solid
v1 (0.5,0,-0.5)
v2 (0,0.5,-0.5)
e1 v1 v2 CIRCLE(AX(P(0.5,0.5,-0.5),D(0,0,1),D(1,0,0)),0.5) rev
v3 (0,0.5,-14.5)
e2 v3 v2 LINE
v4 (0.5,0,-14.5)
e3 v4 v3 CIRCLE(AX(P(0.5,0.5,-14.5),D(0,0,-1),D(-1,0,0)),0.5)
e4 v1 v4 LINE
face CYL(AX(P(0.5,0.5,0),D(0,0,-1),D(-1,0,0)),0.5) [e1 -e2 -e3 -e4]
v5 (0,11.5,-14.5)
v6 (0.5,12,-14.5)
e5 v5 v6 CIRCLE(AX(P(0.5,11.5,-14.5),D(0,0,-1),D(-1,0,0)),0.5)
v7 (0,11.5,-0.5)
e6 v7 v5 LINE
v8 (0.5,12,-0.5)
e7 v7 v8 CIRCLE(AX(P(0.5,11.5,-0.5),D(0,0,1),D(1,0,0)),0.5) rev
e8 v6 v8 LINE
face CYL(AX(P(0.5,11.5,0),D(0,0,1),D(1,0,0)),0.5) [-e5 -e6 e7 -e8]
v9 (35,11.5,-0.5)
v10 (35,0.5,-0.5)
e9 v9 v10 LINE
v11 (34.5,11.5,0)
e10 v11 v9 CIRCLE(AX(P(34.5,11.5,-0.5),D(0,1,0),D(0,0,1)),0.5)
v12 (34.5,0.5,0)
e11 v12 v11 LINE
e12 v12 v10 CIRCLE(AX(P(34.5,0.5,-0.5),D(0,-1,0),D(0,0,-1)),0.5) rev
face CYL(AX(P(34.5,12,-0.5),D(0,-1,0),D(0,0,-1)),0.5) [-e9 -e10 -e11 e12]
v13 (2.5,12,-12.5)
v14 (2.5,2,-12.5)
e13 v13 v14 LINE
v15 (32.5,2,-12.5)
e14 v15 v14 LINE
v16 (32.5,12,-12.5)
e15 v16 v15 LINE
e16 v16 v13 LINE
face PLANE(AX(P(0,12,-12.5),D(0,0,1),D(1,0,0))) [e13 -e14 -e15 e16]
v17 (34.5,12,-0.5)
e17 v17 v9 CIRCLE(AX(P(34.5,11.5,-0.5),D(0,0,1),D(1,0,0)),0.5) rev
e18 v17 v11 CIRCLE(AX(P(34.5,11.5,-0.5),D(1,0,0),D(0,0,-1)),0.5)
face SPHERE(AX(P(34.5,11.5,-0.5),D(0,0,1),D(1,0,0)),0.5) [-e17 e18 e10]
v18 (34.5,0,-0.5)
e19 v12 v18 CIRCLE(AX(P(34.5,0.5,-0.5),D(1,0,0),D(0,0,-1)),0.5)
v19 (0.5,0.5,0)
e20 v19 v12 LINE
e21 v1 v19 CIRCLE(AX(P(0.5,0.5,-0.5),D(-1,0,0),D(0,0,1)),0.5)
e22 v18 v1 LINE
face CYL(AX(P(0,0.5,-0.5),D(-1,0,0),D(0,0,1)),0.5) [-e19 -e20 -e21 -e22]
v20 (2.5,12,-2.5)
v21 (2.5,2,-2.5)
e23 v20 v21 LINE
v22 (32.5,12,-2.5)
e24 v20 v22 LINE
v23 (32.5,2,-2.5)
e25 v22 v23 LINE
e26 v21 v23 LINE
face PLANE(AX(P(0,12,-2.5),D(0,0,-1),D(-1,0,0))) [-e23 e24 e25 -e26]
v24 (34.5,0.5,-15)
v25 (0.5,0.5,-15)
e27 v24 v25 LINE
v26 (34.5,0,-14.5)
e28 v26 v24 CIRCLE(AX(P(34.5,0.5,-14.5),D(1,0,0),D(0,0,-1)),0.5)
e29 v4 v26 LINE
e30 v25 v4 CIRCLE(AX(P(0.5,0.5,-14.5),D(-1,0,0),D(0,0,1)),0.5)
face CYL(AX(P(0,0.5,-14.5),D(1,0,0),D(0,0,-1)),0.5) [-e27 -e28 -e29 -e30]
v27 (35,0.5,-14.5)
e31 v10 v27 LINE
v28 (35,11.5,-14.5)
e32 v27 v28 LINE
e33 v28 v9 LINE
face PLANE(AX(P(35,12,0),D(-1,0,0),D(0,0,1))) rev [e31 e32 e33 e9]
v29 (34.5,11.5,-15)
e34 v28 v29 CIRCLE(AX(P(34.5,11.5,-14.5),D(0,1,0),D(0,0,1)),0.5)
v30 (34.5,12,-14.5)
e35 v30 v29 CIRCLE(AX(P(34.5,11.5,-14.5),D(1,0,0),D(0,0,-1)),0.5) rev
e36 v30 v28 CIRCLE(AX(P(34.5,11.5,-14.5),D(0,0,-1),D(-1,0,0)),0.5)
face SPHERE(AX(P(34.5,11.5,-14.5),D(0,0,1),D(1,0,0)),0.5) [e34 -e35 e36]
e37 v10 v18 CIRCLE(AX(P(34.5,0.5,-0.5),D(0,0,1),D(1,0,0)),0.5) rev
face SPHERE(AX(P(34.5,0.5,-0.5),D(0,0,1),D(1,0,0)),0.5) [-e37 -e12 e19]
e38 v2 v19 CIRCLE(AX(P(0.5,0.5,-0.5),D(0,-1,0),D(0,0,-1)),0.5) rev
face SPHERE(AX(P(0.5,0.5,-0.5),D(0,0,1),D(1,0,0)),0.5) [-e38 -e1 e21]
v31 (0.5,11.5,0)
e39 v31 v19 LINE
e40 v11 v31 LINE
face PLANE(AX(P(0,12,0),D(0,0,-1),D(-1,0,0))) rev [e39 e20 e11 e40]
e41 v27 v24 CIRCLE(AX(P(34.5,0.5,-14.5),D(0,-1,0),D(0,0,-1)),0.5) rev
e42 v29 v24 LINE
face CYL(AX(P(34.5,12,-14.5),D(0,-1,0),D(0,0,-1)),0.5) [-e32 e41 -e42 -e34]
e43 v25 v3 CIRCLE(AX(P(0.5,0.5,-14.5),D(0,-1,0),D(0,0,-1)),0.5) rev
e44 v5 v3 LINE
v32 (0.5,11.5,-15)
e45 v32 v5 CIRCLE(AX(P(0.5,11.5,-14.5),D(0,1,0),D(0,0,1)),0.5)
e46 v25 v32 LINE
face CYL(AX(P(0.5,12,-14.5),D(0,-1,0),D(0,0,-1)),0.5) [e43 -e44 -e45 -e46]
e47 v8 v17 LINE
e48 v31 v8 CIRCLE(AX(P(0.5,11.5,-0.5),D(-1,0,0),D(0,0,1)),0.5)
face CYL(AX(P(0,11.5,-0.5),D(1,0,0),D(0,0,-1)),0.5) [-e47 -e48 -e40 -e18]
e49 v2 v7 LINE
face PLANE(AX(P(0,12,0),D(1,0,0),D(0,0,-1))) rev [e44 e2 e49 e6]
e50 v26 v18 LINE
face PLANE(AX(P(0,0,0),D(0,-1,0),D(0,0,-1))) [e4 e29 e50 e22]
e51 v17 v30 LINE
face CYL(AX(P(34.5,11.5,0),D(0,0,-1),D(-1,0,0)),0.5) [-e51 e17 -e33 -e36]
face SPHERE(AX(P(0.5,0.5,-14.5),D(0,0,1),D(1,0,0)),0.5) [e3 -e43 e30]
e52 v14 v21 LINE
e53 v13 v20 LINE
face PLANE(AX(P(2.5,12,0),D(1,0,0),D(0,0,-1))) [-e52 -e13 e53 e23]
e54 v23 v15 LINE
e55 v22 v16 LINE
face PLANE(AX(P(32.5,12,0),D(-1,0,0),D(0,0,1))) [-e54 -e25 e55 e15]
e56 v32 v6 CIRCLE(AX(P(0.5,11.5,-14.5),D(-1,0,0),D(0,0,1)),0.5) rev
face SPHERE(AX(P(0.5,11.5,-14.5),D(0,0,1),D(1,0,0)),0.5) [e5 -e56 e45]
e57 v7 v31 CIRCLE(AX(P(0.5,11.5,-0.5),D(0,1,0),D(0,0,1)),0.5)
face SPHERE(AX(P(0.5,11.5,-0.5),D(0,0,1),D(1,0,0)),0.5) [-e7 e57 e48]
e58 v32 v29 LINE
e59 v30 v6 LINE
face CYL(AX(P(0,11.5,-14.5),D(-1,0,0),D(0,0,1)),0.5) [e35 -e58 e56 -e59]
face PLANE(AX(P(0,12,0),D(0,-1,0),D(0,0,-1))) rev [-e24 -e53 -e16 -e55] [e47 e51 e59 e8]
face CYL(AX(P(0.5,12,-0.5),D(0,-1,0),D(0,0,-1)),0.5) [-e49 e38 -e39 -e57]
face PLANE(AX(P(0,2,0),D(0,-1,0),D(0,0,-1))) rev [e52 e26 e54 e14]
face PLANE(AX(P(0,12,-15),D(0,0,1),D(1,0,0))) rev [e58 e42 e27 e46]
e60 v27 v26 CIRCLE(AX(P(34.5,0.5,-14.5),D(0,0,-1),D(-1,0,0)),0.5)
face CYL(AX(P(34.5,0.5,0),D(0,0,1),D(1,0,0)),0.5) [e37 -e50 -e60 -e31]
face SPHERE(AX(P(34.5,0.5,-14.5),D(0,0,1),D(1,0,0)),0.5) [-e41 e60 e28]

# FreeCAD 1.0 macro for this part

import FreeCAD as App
import Part
import Sketcher
from FreeCAD import Vector


def edges_at(feature, points):
    """Names of the edges that pass closest to the given points."""
    edges = feature.Shape.Edges
    near = lambda p: min(range(len(edges)), key=lambda i: edges[i].distToShape(Part.Vertex(*p))[0])
    return sorted({f"Edge{near(p) + 1}" for p in points})


def faces_at(feature, points):
    """Names of the faces that lie closest to the given points."""
    faces = feature.Shape.Faces
    near = lambda p: min(range(len(faces)), key=lambda i: faces[i].distToShape(Part.Vertex(*p))[0])
    return sorted({f"Face{near(p) + 1}" for p in points})


def add_polygon(sketch, points):
    """Adds a closed chain of lines whose ends are joined by coincident constraints."""
    first, n = sketch.GeometryCount, len(points)
    for a, b in zip(points, points[1:] + points[:1]):
        sketch.addGeometry(Part.LineSegment(App.Vector(*a, 0), App.Vector(*b, 0)), False)
    for i in range(n):
        sketch.addConstraint(Sketcher.Constraint("Coincident", first + i, 2, first + (i + 1) % n, 1))

doc = App.newDocument("Part")
body = doc.addObject("PartDesign::Body", "Body")

# Sketch on XZ plane
sketch1 = body.newObject("Sketcher::SketchObject", "Sketch")
sketch1.AttachmentSupport = (doc.getObject("XZ_Plane"), [""])
sketch1.MapMode = "FlatFace"
add_polygon(sketch1, [(0, -15), (0, 0), (35, 0), (35, -15)])  # lines 0-3
sketch1.addConstraint([
    Sketcher.Constraint("Vertical", 0),
    Sketcher.Constraint("Horizontal", 1),
    Sketcher.Constraint("Vertical", 2),
    Sketcher.Constraint("Horizontal", 3),
    Sketcher.Constraint("Coincident", 0, 2, -1, 1),
    Sketcher.Constraint("DistanceX", 1, 1, 1, 2, 35.0),
    Sketcher.Constraint("DistanceY", 0, 1, 0, 2, 15.0),
])
pad1 = body.newObject("PartDesign::Pad", "Pad")
pad1.Profile = sketch1
pad1.Length = 12
pad1.Reversed = True
doc.recompute()

thickness = body.newObject("PartDesign::Thickness", "Thickness")
thickness.Base = (pad1, faces_at(pad1, [(17.5, 12, -7.5)]))
thickness.Value = 2.5
thickness.Reversed = True
thickness.Join = "Intersection"
doc.recompute()

fillet = body.newObject("PartDesign::Fillet", "Fillet")
fillet.Base = (thickness, edges_at(thickness, [
    (35, 12, -7.5),
    (17.5, 12, -15),
    (0, 12, -7.5),
    (17.5, 0, -15),
    (35, 0, -7.5),
    (17.5, 0, 0),
    (0, 0, -7.5),
    (17.5, 12, 0),
    (0, 6, -15),
    (35, 6, -15),
    (35, 6, 0),
    (0, 6, 0),
]))
fillet.Radius = 0.5

# Sketch on XZ plane
sketch2 = body.newObject("Sketcher::SketchObject", "Sketch001")
sketch2.AttachmentSupport = (doc.getObject("XZ_Plane"), [""])
sketch2.MapMode = "FlatFace"
sketch2.AttachmentOffset = App.Placement(Vector(0, 0, -2.5), App.Rotation())
add_polygon(sketch2, [(2.5, -12.5), (2.5, -2.5), (32.5, -2.5), (32.5, -12.5)])  # lines 0-3
sketch2.addConstraint([
    Sketcher.Constraint("Vertical", 0),
    Sketcher.Constraint("Horizontal", 1),
    Sketcher.Constraint("Vertical", 2),
    Sketcher.Constraint("Horizontal", 3),
    Sketcher.Constraint("DistanceX", 1, 1, 1, 2, 30.0),
    Sketcher.Constraint("DistanceY", 0, 1, 0, 2, 10.0),
    Sketcher.Constraint("DistanceX", -1, 1, 0, 2, 2.5),
    Sketcher.Constraint("DistanceY", 0, 2, -1, 1, 2.5),
])
pocket1 = body.newObject("PartDesign::Pocket", "Pocket")
pocket1.Profile = sketch2
pocket1.Length = 0.5
pocket1.Reversed = True

doc.recompute()
